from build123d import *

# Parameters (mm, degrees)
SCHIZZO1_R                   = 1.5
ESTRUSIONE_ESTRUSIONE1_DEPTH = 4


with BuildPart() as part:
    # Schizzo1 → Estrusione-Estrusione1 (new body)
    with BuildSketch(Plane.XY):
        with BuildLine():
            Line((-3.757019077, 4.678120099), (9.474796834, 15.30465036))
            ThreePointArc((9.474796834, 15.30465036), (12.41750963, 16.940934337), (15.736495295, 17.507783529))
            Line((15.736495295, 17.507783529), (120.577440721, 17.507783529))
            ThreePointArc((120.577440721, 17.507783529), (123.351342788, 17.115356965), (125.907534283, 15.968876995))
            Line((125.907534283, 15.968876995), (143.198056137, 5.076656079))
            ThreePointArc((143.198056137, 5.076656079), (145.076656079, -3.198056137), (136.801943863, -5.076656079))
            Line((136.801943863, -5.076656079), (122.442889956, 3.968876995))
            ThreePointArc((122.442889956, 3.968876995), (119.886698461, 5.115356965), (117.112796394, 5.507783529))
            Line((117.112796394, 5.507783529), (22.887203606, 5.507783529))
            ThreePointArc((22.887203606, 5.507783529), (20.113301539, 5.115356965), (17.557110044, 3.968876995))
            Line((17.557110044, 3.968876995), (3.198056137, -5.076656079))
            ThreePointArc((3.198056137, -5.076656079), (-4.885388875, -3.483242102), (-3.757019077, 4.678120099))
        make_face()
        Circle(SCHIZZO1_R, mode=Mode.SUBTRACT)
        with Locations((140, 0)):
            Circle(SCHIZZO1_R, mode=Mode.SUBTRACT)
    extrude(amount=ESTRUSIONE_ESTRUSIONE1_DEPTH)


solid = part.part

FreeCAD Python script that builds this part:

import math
import FreeCAD as App
import Part
import Sketcher
from FreeCAD import Vector

doc = App.newDocument("Part")
params = doc.addObject("Spreadsheet::Sheet", "Params")
for row, (alias, value) in enumerate([
    ("sketch1_diameter", "3 mm"),
    ("sketch1_radius", "6 mm"),
    ("sketch1_radius2", "10 mm"),
    ("pad1_length", "4 mm"),
], start=1):
    params.set(f"A{row}", alias)
    params.set(f"B{row}", "=" + value)
    params.setAlias(f"B{row}", alias)

body = doc.addObject("PartDesign::Body", "Body")

# Sketch on XY plane
sketch1 = body.newObject("Sketcher::SketchObject", "Sketch")
sketch1.AttachmentSupport = (doc.getObject("XY_Plane"), [""])
sketch1.MapMode = "FlatFace"
sketch1.addGeometry([
    Part.LineSegment(Vector(9.5, 15.3, 0), Vector(-3.8, 4.7, 0)),  # 0
    Part.ArcOfCircle(Part.Circle(Vector(0, 0, 0), Vector(0, 0, 1), 6), math.radians(129), math.radians(302)),  # 1
    Part.LineSegment(Vector(3.2, -5.1, 0), Vector(17.6, 4, 0)),  # 2
    Part.ArcOfCircle(Part.Circle(Vector(22.9, -4.5, 0), Vector(0, 0, 1), 10), math.radians(90), math.radians(122)),  # 3
    Part.LineSegment(Vector(22.9, 5.5, 0), Vector(117.1, 5.5, 0)),  # 4
    Part.ArcOfCircle(Part.Circle(Vector(117.1, -4.5, 0), Vector(0, 0, 1), 10), math.radians(58), math.radians(90)),  # 5
    Part.LineSegment(Vector(122.4, 4, 0), Vector(136.8, -5.1, 0)),  # 6
    Part.ArcOfCircle(Part.Circle(Vector(140, 0, 0), Vector(0, 0, 1), 6), math.radians(-122), math.radians(58)),  # 7
    Part.LineSegment(Vector(143.2, 5.1, 0), Vector(125.9, 16, 0)),  # 8
    Part.ArcOfCircle(Part.Circle(Vector(120.6, 7.5, 0), Vector(0, 0, 1), 10), math.radians(58), math.radians(90)),  # 9
    Part.LineSegment(Vector(120.6, 17.5, 0), Vector(15.7, 17.5, 0)),  # 10
    Part.ArcOfCircle(Part.Circle(Vector(15.7, 7.5, 0), Vector(0, 0, 1), 10), math.radians(90), math.radians(129)),  # 11
    Part.Circle(Vector(140, 0, 0), Vector(0, 0, 1), 1.5),  # 12
    Part.Circle(Vector(0, 0, 0), Vector(0, 0, 1), 1.5),  # 13
], False)
sketch1.addConstraint([
    Sketcher.Constraint("Tangent", 0, 2, 1, 1),
    Sketcher.Constraint("Tangent", 1, 2, 2, 1),
    Sketcher.Constraint("Tangent", 2, 2, 3, 2),
    Sketcher.Constraint("Tangent", 3, 1, 4, 1),
    Sketcher.Constraint("Tangent", 4, 2, 5, 2),
    Sketcher.Constraint("Tangent", 5, 1, 6, 1),
    Sketcher.Constraint("Tangent", 6, 2, 7, 1),
    Sketcher.Constraint("Tangent", 7, 2, 8, 1),
    Sketcher.Constraint("Tangent", 8, 2, 9, 1),
    Sketcher.Constraint("Tangent", 9, 2, 10, 1),
    Sketcher.Constraint("Tangent", 10, 2, 11, 1),
    Sketcher.Constraint("Tangent", 11, 2, 0, 1),
    Sketcher.Constraint("Horizontal", 4),
    Sketcher.Constraint("Horizontal", 10),
    Sketcher.Constraint("Coincident", 1, 3, -1, 1),
    Sketcher.Constraint("Coincident", 13, 3, -1, 1),
    Sketcher.Constraint("Coincident", 12, 3, 7, 3),
    Sketcher.Constraint("Equal", 3, 5),
    Sketcher.Constraint("Equal", 1, 7),
    Sketcher.Constraint("Equal", 5, 9),
    Sketcher.Constraint("Equal", 9, 11),
    Sketcher.Constraint("Equal", 12, 13),
    Sketcher.Constraint("PointOnObject", 7, 3, -1),
    Sketcher.Constraint("Parallel", 6, 8),
    Sketcher.Constraint("Horizontal", 2, 2, 5, 1),
    Sketcher.Constraint("Equal", 0, 2),
    Sketcher.Constraint("Diameter", 12, 3.0),
    Sketcher.Constraint("Radius", 1, 6.0),
    Sketcher.Constraint("Radius", 3, 10.0),
    Sketcher.Constraint("DistanceX", -1, 1, 7, 3, 140.0),
    Sketcher.Constraint("DistanceY", 5, 3, 9, 3, 12.0),
    Sketcher.Constraint("DistanceX", 11, 3, 5, 3, 101.376301),
    Sketcher.Constraint("DistanceX", 11, 2, 10, 2, 6.261698),
])
sketch1.setExpression("Constraints[26]", "Params.sketch1_diameter")
sketch1.setExpression("Constraints[27]", "Params.sketch1_radius")
sketch1.setExpression("Constraints[28]", "Params.sketch1_radius2")
pad1 = body.newObject("PartDesign::Pad", "Pad")
pad1.Profile = sketch1
pad1.setExpression("Length", "Params.pad1_length")

doc.recompute()
